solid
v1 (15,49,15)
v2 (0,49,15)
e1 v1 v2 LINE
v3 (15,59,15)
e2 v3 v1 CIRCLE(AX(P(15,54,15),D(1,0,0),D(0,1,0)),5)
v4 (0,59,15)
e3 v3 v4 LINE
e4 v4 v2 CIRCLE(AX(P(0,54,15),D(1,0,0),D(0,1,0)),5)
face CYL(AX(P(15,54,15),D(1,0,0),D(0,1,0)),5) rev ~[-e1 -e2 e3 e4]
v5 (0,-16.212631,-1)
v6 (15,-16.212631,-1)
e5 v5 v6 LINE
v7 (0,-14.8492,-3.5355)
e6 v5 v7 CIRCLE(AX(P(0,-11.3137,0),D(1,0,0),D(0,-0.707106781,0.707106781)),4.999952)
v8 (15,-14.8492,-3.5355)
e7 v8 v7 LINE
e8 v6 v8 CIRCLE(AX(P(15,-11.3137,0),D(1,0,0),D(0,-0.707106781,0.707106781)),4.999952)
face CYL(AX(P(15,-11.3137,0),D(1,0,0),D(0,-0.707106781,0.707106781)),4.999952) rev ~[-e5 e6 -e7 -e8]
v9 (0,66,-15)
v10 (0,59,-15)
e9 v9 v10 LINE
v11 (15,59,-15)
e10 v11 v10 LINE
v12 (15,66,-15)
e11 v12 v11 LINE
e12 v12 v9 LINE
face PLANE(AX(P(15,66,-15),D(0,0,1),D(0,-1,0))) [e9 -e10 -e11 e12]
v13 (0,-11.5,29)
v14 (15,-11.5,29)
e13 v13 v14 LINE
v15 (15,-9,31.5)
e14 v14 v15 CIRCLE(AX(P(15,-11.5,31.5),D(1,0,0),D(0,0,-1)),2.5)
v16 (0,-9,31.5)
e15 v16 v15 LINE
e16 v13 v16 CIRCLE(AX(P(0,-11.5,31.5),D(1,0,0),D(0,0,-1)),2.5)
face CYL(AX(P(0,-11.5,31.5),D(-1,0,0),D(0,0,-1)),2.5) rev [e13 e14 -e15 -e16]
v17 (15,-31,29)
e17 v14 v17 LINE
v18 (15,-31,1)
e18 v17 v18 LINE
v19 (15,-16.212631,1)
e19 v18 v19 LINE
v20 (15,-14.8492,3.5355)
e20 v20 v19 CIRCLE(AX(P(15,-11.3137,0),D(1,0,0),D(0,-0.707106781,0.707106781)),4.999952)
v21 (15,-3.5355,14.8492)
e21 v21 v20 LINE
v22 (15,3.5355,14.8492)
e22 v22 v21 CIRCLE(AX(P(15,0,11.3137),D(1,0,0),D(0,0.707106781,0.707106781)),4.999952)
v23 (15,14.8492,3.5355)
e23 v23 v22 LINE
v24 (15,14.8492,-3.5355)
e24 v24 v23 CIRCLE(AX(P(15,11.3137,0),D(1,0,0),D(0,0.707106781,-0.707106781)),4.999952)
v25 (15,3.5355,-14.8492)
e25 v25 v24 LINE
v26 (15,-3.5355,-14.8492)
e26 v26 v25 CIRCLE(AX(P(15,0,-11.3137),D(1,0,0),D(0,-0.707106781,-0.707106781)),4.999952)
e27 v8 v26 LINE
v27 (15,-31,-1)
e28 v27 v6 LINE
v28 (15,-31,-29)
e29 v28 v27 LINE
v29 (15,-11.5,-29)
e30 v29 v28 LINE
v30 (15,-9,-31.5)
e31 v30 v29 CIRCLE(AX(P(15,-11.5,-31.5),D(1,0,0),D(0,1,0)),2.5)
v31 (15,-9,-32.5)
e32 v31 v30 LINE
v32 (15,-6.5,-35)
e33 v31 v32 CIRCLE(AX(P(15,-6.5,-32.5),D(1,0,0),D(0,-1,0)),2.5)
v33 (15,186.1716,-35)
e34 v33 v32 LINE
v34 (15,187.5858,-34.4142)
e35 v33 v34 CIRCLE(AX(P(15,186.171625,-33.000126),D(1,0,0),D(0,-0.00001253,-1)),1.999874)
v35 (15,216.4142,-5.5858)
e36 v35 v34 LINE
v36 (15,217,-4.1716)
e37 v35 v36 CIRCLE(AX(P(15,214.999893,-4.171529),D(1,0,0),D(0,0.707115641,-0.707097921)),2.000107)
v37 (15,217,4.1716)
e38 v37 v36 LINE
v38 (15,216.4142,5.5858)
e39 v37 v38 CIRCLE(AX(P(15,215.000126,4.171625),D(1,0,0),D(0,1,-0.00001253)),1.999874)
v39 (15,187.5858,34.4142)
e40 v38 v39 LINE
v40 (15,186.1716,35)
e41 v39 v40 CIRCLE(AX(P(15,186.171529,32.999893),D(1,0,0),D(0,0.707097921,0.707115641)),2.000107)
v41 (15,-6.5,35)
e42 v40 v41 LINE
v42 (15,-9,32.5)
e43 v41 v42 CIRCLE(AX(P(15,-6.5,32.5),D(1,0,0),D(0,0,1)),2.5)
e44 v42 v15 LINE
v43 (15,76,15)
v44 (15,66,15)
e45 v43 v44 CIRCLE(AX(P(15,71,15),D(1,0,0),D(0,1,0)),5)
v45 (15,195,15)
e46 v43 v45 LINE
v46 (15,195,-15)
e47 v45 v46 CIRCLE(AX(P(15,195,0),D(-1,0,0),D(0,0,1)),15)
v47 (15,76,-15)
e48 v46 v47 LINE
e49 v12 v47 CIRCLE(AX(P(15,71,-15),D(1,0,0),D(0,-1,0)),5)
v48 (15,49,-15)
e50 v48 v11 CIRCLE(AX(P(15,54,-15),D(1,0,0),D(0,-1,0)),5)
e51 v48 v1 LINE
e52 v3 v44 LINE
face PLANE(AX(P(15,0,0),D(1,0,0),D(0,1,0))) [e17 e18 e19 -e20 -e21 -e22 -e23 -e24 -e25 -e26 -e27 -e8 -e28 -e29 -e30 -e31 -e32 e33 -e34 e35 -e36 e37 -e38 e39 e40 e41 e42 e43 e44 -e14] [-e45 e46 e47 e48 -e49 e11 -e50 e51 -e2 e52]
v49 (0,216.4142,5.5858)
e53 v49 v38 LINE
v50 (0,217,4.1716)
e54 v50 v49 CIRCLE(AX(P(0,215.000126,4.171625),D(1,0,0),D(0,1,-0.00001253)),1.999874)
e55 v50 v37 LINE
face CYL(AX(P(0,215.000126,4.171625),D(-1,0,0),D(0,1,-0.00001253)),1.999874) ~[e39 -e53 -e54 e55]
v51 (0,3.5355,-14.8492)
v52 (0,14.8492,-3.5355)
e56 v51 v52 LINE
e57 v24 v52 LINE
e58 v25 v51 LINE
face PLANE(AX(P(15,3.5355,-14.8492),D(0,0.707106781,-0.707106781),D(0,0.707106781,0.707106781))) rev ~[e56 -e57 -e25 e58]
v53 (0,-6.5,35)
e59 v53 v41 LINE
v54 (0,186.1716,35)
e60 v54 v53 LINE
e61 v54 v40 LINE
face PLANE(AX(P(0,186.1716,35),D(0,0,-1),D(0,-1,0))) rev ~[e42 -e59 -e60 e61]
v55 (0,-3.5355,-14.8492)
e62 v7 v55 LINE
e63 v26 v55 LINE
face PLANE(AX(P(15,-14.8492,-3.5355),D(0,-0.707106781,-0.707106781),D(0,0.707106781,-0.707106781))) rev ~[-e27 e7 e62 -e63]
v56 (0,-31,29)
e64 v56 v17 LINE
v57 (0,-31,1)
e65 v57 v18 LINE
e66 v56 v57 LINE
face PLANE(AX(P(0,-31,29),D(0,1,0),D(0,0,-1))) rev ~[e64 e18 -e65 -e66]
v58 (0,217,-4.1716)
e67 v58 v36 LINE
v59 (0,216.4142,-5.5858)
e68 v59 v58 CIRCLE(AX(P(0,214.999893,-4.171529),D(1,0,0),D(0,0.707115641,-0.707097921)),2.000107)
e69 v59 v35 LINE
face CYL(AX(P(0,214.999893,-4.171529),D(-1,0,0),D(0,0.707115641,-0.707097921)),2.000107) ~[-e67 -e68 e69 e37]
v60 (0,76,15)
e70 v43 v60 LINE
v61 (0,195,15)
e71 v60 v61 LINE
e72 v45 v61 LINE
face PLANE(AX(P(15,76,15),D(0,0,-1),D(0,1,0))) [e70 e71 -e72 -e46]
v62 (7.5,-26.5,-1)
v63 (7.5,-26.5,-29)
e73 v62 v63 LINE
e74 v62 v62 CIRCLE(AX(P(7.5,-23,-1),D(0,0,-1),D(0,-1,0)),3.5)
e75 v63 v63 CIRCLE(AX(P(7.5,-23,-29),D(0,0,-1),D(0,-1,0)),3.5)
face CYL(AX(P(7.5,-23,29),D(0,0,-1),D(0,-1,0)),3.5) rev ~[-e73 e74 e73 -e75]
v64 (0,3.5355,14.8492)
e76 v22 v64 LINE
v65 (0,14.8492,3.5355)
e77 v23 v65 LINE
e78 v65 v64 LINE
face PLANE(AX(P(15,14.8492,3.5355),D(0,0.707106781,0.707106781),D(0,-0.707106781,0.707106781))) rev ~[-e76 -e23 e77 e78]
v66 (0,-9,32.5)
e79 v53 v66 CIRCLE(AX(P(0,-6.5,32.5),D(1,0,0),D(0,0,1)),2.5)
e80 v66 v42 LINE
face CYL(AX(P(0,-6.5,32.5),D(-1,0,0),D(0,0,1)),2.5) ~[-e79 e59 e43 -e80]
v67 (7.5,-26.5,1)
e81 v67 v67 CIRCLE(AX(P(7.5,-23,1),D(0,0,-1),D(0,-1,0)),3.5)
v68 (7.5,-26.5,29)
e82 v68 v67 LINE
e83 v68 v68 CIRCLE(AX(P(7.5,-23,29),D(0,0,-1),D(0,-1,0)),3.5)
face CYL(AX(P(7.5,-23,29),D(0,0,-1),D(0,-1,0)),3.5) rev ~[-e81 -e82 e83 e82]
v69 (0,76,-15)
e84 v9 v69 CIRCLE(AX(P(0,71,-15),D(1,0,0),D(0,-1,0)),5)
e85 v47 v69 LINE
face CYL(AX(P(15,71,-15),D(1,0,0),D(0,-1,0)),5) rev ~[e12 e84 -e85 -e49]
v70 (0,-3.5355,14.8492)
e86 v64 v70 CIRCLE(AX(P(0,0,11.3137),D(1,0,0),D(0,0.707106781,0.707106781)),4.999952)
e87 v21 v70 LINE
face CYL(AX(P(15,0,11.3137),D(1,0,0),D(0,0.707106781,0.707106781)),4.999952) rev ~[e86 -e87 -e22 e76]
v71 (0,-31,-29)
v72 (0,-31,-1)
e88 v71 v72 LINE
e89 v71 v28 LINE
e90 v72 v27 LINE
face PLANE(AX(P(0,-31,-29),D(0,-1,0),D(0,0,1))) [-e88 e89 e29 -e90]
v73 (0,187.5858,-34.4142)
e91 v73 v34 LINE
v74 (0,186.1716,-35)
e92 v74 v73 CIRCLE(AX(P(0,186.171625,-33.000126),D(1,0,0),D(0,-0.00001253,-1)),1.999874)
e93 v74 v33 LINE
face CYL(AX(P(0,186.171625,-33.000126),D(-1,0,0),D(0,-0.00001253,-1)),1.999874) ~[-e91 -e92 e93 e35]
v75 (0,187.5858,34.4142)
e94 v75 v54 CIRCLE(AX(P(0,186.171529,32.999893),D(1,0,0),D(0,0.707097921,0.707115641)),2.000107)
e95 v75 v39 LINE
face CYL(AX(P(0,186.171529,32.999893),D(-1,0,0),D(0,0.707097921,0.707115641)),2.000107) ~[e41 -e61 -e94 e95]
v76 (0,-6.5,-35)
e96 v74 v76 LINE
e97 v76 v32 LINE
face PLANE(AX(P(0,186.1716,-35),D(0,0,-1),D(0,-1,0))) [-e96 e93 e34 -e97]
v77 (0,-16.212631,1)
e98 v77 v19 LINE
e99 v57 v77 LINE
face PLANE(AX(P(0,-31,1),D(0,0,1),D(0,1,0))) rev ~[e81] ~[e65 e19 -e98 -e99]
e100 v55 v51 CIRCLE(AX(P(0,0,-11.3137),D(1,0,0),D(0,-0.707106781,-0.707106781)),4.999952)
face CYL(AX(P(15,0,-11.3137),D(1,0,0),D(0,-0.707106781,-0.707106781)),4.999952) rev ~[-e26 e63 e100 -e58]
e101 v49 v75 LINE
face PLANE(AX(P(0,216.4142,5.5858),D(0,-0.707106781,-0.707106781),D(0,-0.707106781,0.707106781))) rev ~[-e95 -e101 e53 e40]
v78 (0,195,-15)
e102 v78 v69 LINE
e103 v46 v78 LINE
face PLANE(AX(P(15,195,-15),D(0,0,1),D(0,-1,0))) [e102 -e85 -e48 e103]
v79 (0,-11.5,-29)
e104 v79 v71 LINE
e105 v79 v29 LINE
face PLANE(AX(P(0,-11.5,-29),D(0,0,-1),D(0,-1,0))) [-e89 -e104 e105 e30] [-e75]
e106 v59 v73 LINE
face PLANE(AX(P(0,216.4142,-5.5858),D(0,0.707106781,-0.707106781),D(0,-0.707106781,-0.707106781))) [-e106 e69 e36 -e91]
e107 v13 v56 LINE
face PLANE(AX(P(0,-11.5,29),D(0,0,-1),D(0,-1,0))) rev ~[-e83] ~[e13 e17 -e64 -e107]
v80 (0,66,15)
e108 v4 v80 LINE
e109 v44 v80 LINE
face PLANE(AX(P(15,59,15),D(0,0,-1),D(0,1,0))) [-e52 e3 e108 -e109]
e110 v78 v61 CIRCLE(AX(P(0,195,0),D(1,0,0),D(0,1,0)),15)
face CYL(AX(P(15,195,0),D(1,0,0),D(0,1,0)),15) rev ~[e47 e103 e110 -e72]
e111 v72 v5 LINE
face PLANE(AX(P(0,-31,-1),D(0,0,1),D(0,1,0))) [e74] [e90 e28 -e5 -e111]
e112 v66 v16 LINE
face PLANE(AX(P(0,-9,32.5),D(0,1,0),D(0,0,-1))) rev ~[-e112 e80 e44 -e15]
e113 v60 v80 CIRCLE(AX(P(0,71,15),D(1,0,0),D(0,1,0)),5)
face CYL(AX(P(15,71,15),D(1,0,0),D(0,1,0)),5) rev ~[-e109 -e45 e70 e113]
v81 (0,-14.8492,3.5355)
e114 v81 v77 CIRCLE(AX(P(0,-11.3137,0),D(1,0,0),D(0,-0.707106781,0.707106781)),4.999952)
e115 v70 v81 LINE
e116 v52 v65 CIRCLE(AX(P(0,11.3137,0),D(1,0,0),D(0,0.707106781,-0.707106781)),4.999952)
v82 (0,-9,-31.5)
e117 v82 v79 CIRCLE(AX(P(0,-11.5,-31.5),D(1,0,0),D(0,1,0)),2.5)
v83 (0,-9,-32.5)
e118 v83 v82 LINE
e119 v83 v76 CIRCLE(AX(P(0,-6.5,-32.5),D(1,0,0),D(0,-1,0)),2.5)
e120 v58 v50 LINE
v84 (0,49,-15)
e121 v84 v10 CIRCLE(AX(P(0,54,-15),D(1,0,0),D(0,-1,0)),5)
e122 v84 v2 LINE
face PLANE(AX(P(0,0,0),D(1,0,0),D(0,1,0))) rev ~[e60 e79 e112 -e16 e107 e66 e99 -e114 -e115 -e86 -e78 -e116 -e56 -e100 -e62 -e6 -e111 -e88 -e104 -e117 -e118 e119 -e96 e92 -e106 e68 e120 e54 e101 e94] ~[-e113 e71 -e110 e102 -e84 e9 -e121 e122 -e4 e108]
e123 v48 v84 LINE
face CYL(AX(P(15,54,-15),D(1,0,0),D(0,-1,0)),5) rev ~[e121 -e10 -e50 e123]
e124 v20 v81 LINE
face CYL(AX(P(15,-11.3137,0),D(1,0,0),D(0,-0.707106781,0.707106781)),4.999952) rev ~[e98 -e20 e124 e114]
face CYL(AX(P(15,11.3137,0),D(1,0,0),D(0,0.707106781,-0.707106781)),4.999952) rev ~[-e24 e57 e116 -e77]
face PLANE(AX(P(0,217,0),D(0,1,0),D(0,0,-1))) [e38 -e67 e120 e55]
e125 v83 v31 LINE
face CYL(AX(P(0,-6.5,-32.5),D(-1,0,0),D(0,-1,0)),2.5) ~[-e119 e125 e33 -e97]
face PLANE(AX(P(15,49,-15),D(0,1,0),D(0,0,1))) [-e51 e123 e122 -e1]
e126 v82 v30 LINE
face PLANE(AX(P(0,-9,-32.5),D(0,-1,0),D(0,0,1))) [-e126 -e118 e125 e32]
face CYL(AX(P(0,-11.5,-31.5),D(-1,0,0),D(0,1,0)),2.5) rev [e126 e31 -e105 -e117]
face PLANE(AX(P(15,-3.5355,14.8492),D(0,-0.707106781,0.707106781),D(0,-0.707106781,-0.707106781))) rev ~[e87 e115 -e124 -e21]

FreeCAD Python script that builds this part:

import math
import FreeCAD as App
import Part
import Sketcher

V = App.Vector

doc = App.newDocument("Part")
body = doc.addObject("PartDesign::Body", "Body")

sketch1 = doc.addObject("Sketcher::SketchObject", "Sketch")
body.addObject(sketch1)
sketch1.AttachmentSupport = (doc.YZ_Plane, [""])
sketch1.MapMode = "FlatFace"
sketch1.addGeometry(Part.LineSegment(V(217, -4.2, 0), V(217, 4.2, 0)), False)
sketch1.addGeometry(Part.ArcOfCircle(Part.Circle(V(215, 4.2, 0), V(0, 0, 1), 2), math.radians(0), math.radians(45)), False)
sketch1.addGeometry(Part.LineSegment(V(216.4, 5.6, 0), V(187.6, 34.4, 0)), False)
sketch1.addGeometry(Part.ArcOfCircle(Part.Circle(V(186.2, 33, 0), V(0, 0, 1), 2), math.radians(45), math.radians(90)), False)
sketch1.addGeometry(Part.LineSegment(V(186.2, 35, 0), V(-6.5, 35, 0)), False)
sketch1.addGeometry(Part.ArcOfCircle(Part.Circle(V(-6.5, 32.5, 0), V(0, 0, 1), 2.5), math.radians(90), math.radians(180)), False)
sketch1.addGeometry(Part.LineSegment(V(-9, 32.5, 0), V(-9, 31.5, 0)), False)
sketch1.addGeometry(Part.ArcOfCircle(Part.Circle(V(-11.5, 31.5, 0), V(0, 0, 1), 2.5), math.radians(-90), math.radians(0)), False)
sketch1.addGeometry(Part.LineSegment(V(-11.5, 29, 0), V(-31, 29, 0)), False)
sketch1.addGeometry(Part.LineSegment(V(-31, 29, 0), V(-31, 1, 0)), False)
sketch1.addGeometry(Part.LineSegment(V(-31, 1, 0), V(0, 1, 0)), False)
sketch1.addGeometry(Part.LineSegment(V(0, 1, 0), V(0, -1, 0)), False)
sketch1.addGeometry(Part.LineSegment(V(0, -1, 0), V(-31, -1, 0)), False)
sketch1.addGeometry(Part.LineSegment(V(-31, -1, 0), V(-31, -29, 0)), False)
sketch1.addGeometry(Part.LineSegment(V(-31, -29, 0), V(-11.5, -29, 0)), False)
sketch1.addGeometry(Part.ArcOfCircle(Part.Circle(V(-11.5, -31.5, 0), V(0, 0, 1), 2.5), math.radians(0), math.radians(90)), False)
sketch1.addGeometry(Part.LineSegment(V(-9, -31.5, 0), V(-9, -32.5, 0)), False)
sketch1.addGeometry(Part.ArcOfCircle(Part.Circle(V(-6.5, -32.5, 0), V(0, 0, 1), 2.5), math.radians(180), math.radians(270)), False)
sketch1.addGeometry(Part.LineSegment(V(-6.5, -35, 0), V(186.2, -35, 0)), False)
sketch1.addGeometry(Part.ArcOfCircle(Part.Circle(V(186.2, -33, 0), V(0, 0, 1), 2), math.radians(-90), math.radians(-45)), False)
sketch1.addGeometry(Part.LineSegment(V(187.6, -34.4, 0), V(216.4, -5.6, 0)), False)
sketch1.addGeometry(Part.ArcOfCircle(Part.Circle(V(215, -4.2, 0), V(0, 0, 1), 2), math.radians(-45), math.radians(0)), False)
sketch1.addConstraint(Sketcher.Constraint("Tangent", 0, 2, 1, 1))
sketch1.addConstraint(Sketcher.Constraint("Tangent", 1, 2, 2, 1))
sketch1.addConstraint(Sketcher.Constraint("Tangent", 2, 2, 3, 1))
sketch1.addConstraint(Sketcher.Constraint("Tangent", 3, 2, 4, 1))
sketch1.addConstraint(Sketcher.Constraint("Tangent", 4, 2, 5, 1))
sketch1.addConstraint(Sketcher.Constraint("Tangent", 5, 2, 6, 1))
sketch1.addConstraint(Sketcher.Constraint("Tangent", 6, 2, 7, 2))
sketch1.addConstraint(Sketcher.Constraint("Tangent", 7, 1, 8, 1))
sketch1.addConstraint(Sketcher.Constraint("Coincident", 8, 2, 9, 1))
sketch1.addConstraint(Sketcher.Constraint("Coincident", 9, 2, 10, 1))
sketch1.addConstraint(Sketcher.Constraint("Coincident", 10, 2, 11, 1))
sketch1.addConstraint(Sketcher.Constraint("Coincident", 11, 2, 12, 1))
sketch1.addConstraint(Sketcher.Constraint("Coincident", 12, 2, 13, 1))
sketch1.addConstraint(Sketcher.Constraint("Coincident", 13, 2, 14, 1))
sketch1.addConstraint(Sketcher.Constraint("Tangent", 14, 2, 15, 2))
sketch1.addConstraint(Sketcher.Constraint("Tangent", 15, 1, 16, 1))
sketch1.addConstraint(Sketcher.Constraint("Tangent", 16, 2, 17, 1))
sketch1.addConstraint(Sketcher.Constraint("Tangent", 17, 2, 18, 1))
sketch1.addConstraint(Sketcher.Constraint("Tangent", 18, 2, 19, 1))
sketch1.addConstraint(Sketcher.Constraint("Tangent", 19, 2, 20, 1))
sketch1.addConstraint(Sketcher.Constraint("Tangent", 20, 2, 21, 1))
sketch1.addConstraint(Sketcher.Constraint("Tangent", 21, 2, 0, 1))
sketch1.addConstraint(Sketcher.Constraint("Vertical", 0))
sketch1.addConstraint(Sketcher.Constraint("Horizontal", 4))
sketch1.addConstraint(Sketcher.Constraint("Vertical", 6))
sketch1.addConstraint(Sketcher.Constraint("Horizontal", 8))
sketch1.addConstraint(Sketcher.Constraint("Vertical", 9))
sketch1.addConstraint(Sketcher.Constraint("Horizontal", 10))
sketch1.addConstraint(Sketcher.Constraint("Vertical", 11))
sketch1.addConstraint(Sketcher.Constraint("Horizontal", 12))
sketch1.addConstraint(Sketcher.Constraint("Vertical", 13))
sketch1.addConstraint(Sketcher.Constraint("Horizontal", 14))
sketch1.addConstraint(Sketcher.Constraint("Vertical", 16))
sketch1.addConstraint(Sketcher.Constraint("Horizontal", 18))
sketch1.addConstraint(Sketcher.Constraint("Equal", 1, 3))
sketch1.addConstraint(Sketcher.Constraint("Equal", 5, 7))
sketch1.addConstraint(Sketcher.Constraint("Equal", 7, 15))
sketch1.addConstraint(Sketcher.Constraint("Equal", 15, 17))
sketch1.addConstraint(Sketcher.Constraint("Equal", 3, 19))
sketch1.addConstraint(Sketcher.Constraint("Equal", 19, 21))
sketch1.addConstraint(Sketcher.Constraint("Symmetric", 10, 2, 11, 2, -1, 1))
sketch1.addConstraint(Sketcher.Constraint("Symmetric", 7, 3, 15, 3, -1))
sketch1.addConstraint(Sketcher.Constraint("Symmetric", 3, 3, 19, 3, -1))
sketch1.addConstraint(Sketcher.Constraint("Perpendicular", 2, 20))
sketch1.addConstraint(Sketcher.Constraint("Vertical", 9, 2, 12, 2))
sketch1.addConstraint(Sketcher.Constraint("Vertical", 2, 2, 19, 2))
sketch1.addConstraint(Sketcher.Constraint("Radius", 1, 2.0))
sketch1.addConstraint(Sketcher.Constraint("Radius", 5, 2.5))
sketch1.addConstraint(Sketcher.Constraint("DistanceX", 10, 1, 10, 2, 31.0))
sketch1.addConstraint(Sketcher.Constraint("DistanceY", 11, 2, 11, 1, 2.0))
sketch1.addConstraint(Sketcher.Constraint("DistanceX", -1, 1, 0, 2, 217.0))
sketch1.addConstraint(Sketcher.Constraint("DistanceX", 8, 2, 6, 2, 22.0))
sketch1.addConstraint(Sketcher.Constraint("DistanceY", 6, 2, 6, 1, 1.0))
sketch1.addConstraint(Sketcher.Constraint("DistanceY", 9, 2, 9, 1, 28.0))
sketch1.addConstraint(Sketcher.Constraint("DistanceX", 4, 2, 4, 1, 192.6716))
pad1 = doc.addObject("PartDesign::Pad", "Pad")
body.addObject(pad1)
pad1.Profile = sketch1
pad1.Length = 15

sketch2 = doc.addObject("Sketcher::SketchObject", "Sketch001")
body.addObject(sketch2)
sketch2.AttachmentSupport = (doc.YZ_Plane, [""])
sketch2.MapMode = "FlatFace"
sketch2.AttachmentOffset = App.Placement(V(0, 0, 15), App.Rotation())
sketch2.addGeometry(Part.LineSegment(V(49, 15, 0), V(49, -15, 0)), False)
sketch2.addGeometry(Part.ArcOfCircle(Part.Circle(V(54, -15, 0), V(0, 0, 1), 5), math.radians(180), math.radians(360)), False)
sketch2.addGeometry(Part.LineSegment(V(59, -15, 0), V(66, -15, 0)), False)
sketch2.addGeometry(Part.ArcOfCircle(Part.Circle(V(71, -15, 0), V(0, 0, 1), 5), math.radians(180), math.radians(360)), False)
sketch2.addGeometry(Part.LineSegment(V(76, -15, 0), V(195, -15, 0)), False)
sketch2.addGeometry(Part.ArcOfCircle(Part.Circle(V(195, 0, 0), V(0, 0, 1), 15), math.radians(-90), math.radians(90)), False)
sketch2.addGeometry(Part.LineSegment(V(195, 15, 0), V(76, 15, 0)), False)
sketch2.addGeometry(Part.ArcOfCircle(Part.Circle(V(71, 15, 0), V(0, 0, 1), 5), math.radians(0), math.radians(180)), False)
sketch2.addGeometry(Part.LineSegment(V(66, 15, 0), V(59, 15, 0)), False)
sketch2.addGeometry(Part.ArcOfCircle(Part.Circle(V(54, 15, 0), V(0, 0, 1), 5), math.radians(0), math.radians(180)), False)
sketch2.addGeometry(Part.ArcOfCircle(Part.Circle(V(11.3, 0, 0), V(0, 0, 1), 5), math.radians(-45), math.radians(45)), False)
sketch2.addGeometry(Part.LineSegment(V(14.8, 3.5, 0), V(3.5, 14.8, 0)), False)
sketch2.addGeometry(Part.ArcOfCircle(Part.Circle(V(0, 11.3, 0), V(0, 0, 1), 5), math.radians(45), math.radians(135)), False)
sketch2.addGeometry(Part.LineSegment(V(-3.5, 14.8, 0), V(-14.8, 3.5, 0)), False)
sketch2.addGeometry(Part.ArcOfCircle(Part.Circle(V(-11.3, 0, 0), V(0, 0, 1), 5), math.radians(135), math.radians(225)), False)
sketch2.addGeometry(Part.LineSegment(V(-14.8, -3.5, 0), V(-3.5, -14.8, 0)), False)
sketch2.addGeometry(Part.ArcOfCircle(Part.Circle(V(0, -11.3, 0), V(0, 0, 1), 5), math.radians(-135), math.radians(-45)), False)
sketch2.addGeometry(Part.LineSegment(V(3.5, -14.8, 0), V(14.8, -3.5, 0)), False)
sketch2.addConstraint(Sketcher.Constraint("Tangent", 0, 2, 1, 1))
sketch2.addConstraint(Sketcher.Constraint("Coincident", 1, 2, 2, 1))
sketch2.addConstraint(Sketcher.Constraint("Coincident", 2, 2, 3, 1))
sketch2.addConstraint(Sketcher.Constraint("Coincident", 3, 2, 4, 1))
sketch2.addConstraint(Sketcher.Constraint("Tangent", 4, 2, 5, 1))
sketch2.addConstraint(Sketcher.Constraint("Tangent", 5, 2, 6, 1))
sketch2.addConstraint(Sketcher.Constraint("Coincident", 6, 2, 7, 1))
sketch2.addConstraint(Sketcher.Constraint("Coincident", 7, 2, 8, 1))
sketch2.addConstraint(Sketcher.Constraint("Coincident", 8, 2, 9, 1))
sketch2.addConstraint(Sketcher.Constraint("Tangent", 9, 2, 0, 1))
sketch2.addConstraint(Sketcher.Constraint("Tangent", 10, 2, 11, 1))
sketch2.addConstraint(Sketcher.Constraint("Tangent", 11, 2, 12, 1))
sketch2.addConstraint(Sketcher.Constraint("Tangent", 12, 2, 13, 1))
sketch2.addConstraint(Sketcher.Constraint("Tangent", 13, 2, 14, 1))
sketch2.addConstraint(Sketcher.Constraint("Tangent", 14, 2, 15, 1))
sketch2.addConstraint(Sketcher.Constraint("Tangent", 15, 2, 16, 1))
sketch2.addConstraint(Sketcher.Constraint("Tangent", 16, 2, 17, 1))
sketch2.addConstraint(Sketcher.Constraint("Tangent", 17, 2, 10, 1))
sketch2.addConstraint(Sketcher.Constraint("Vertical", 0))
sketch2.addConstraint(Sketcher.Constraint("Horizontal", 2))
sketch2.addConstraint(Sketcher.Constraint("Horizontal", 4))
sketch2.addConstraint(Sketcher.Constraint("Horizontal", 6))
sketch2.addConstraint(Sketcher.Constraint("Horizontal", 8))
sketch2.addConstraint(Sketcher.Constraint("Equal", 1, 3))
sketch2.addConstraint(Sketcher.Constraint("Equal", 3, 7))
sketch2.addConstraint(Sketcher.Constraint("Equal", 7, 9))
sketch2.addConstraint(Sketcher.Constraint("Equal", 9, 10))
sketch2.addConstraint(Sketcher.Constraint("Equal", 10, 12))
sketch2.addConstraint(Sketcher.Constraint("Equal", 12, 14))
sketch2.addConstraint(Sketcher.Constraint("Equal", 14, 16))
sketch2.addConstraint(Sketcher.Constraint("Symmetric", 10, 3, 14, 3, -1, 1))
sketch2.addConstraint(Sketcher.Constraint("Symmetric", 12, 3, 16, 3, -1, 1))
sketch2.addConstraint(Sketcher.Constraint("Symmetric", 11, 2, 12, 2, -2))
sketch2.addConstraint(Sketcher.Constraint("Symmetric", 3, 3, 7, 3, -1))
sketch2.addConstraint(Sketcher.Constraint("PointOnObject", 5, 3, -1))
sketch2.addConstraint(Sketcher.Constraint("Perpendicular", 11, 13))
sketch2.addConstraint(Sketcher.Constraint("Horizontal", 1, 3, 3, 3))
sketch2.addConstraint(Sketcher.Constraint("Horizontal", 7, 3, 9, 3))
sketch2.addConstraint(Sketcher.Constraint("Horizontal", 0, 2, 1, 2))
sketch2.addConstraint(Sketcher.Constraint("Horizontal", 2, 2, 3, 2))
sketch2.addConstraint(Sketcher.Constraint("Horizontal", 6, 2, 7, 2))
sketch2.addConstraint(Sketcher.Constraint("Radius", 1, 5.0))
sketch2.addConstraint(Sketcher.Constraint("Radius", 5, 15.0))
sketch2.addConstraint(Sketcher.Constraint("DistanceX", 2, 1, 2, 2, 7.0))
sketch2.addConstraint(Sketcher.Constraint("DistanceX", 4, 1, 4, 2, 119.0))
sketch2.addConstraint(Sketcher.Constraint("Distance", 11, 16.0))
sketch2.addConstraint(Sketcher.Constraint("DistanceX", -1, 1, 1, 3, 54.0))
pocket1 = doc.addObject("PartDesign::Pocket", "Pocket")
body.addObject(pocket1)
pocket1.Profile = sketch2
pocket1.Type = "ThroughAll"

sketch3 = doc.addObject("Sketcher::SketchObject", "Sketch002")
body.addObject(sketch3)
sketch3.AttachmentSupport = (doc.XY_Plane, [""])
sketch3.MapMode = "FlatFace"
sketch3.AttachmentOffset = App.Placement(V(0, 0, 29), App.Rotation())
sketch3.addGeometry(Part.Circle(V(7.5, -23, 0), V(0, 0, 1), 3.5), False)
sketch3.addConstraint(Sketcher.Constraint("Diameter", 0, 7.0))
sketch3.addConstraint(Sketcher.Constraint("DistanceY", 0, 3, -1, 1, 23.0))
sketch3.addConstraint(Sketcher.Constraint("DistanceX", -1, 1, 0, 3, 7.5))
doc.recompute()
hole = doc.addObject("PartDesign::Hole", "Hole")
body.addObject(hole)
hole.Profile = sketch3
hole.ThreadType = "None"
hole.Diameter = 7
hole.DepthType = "ThroughAll"

doc.recompute()
